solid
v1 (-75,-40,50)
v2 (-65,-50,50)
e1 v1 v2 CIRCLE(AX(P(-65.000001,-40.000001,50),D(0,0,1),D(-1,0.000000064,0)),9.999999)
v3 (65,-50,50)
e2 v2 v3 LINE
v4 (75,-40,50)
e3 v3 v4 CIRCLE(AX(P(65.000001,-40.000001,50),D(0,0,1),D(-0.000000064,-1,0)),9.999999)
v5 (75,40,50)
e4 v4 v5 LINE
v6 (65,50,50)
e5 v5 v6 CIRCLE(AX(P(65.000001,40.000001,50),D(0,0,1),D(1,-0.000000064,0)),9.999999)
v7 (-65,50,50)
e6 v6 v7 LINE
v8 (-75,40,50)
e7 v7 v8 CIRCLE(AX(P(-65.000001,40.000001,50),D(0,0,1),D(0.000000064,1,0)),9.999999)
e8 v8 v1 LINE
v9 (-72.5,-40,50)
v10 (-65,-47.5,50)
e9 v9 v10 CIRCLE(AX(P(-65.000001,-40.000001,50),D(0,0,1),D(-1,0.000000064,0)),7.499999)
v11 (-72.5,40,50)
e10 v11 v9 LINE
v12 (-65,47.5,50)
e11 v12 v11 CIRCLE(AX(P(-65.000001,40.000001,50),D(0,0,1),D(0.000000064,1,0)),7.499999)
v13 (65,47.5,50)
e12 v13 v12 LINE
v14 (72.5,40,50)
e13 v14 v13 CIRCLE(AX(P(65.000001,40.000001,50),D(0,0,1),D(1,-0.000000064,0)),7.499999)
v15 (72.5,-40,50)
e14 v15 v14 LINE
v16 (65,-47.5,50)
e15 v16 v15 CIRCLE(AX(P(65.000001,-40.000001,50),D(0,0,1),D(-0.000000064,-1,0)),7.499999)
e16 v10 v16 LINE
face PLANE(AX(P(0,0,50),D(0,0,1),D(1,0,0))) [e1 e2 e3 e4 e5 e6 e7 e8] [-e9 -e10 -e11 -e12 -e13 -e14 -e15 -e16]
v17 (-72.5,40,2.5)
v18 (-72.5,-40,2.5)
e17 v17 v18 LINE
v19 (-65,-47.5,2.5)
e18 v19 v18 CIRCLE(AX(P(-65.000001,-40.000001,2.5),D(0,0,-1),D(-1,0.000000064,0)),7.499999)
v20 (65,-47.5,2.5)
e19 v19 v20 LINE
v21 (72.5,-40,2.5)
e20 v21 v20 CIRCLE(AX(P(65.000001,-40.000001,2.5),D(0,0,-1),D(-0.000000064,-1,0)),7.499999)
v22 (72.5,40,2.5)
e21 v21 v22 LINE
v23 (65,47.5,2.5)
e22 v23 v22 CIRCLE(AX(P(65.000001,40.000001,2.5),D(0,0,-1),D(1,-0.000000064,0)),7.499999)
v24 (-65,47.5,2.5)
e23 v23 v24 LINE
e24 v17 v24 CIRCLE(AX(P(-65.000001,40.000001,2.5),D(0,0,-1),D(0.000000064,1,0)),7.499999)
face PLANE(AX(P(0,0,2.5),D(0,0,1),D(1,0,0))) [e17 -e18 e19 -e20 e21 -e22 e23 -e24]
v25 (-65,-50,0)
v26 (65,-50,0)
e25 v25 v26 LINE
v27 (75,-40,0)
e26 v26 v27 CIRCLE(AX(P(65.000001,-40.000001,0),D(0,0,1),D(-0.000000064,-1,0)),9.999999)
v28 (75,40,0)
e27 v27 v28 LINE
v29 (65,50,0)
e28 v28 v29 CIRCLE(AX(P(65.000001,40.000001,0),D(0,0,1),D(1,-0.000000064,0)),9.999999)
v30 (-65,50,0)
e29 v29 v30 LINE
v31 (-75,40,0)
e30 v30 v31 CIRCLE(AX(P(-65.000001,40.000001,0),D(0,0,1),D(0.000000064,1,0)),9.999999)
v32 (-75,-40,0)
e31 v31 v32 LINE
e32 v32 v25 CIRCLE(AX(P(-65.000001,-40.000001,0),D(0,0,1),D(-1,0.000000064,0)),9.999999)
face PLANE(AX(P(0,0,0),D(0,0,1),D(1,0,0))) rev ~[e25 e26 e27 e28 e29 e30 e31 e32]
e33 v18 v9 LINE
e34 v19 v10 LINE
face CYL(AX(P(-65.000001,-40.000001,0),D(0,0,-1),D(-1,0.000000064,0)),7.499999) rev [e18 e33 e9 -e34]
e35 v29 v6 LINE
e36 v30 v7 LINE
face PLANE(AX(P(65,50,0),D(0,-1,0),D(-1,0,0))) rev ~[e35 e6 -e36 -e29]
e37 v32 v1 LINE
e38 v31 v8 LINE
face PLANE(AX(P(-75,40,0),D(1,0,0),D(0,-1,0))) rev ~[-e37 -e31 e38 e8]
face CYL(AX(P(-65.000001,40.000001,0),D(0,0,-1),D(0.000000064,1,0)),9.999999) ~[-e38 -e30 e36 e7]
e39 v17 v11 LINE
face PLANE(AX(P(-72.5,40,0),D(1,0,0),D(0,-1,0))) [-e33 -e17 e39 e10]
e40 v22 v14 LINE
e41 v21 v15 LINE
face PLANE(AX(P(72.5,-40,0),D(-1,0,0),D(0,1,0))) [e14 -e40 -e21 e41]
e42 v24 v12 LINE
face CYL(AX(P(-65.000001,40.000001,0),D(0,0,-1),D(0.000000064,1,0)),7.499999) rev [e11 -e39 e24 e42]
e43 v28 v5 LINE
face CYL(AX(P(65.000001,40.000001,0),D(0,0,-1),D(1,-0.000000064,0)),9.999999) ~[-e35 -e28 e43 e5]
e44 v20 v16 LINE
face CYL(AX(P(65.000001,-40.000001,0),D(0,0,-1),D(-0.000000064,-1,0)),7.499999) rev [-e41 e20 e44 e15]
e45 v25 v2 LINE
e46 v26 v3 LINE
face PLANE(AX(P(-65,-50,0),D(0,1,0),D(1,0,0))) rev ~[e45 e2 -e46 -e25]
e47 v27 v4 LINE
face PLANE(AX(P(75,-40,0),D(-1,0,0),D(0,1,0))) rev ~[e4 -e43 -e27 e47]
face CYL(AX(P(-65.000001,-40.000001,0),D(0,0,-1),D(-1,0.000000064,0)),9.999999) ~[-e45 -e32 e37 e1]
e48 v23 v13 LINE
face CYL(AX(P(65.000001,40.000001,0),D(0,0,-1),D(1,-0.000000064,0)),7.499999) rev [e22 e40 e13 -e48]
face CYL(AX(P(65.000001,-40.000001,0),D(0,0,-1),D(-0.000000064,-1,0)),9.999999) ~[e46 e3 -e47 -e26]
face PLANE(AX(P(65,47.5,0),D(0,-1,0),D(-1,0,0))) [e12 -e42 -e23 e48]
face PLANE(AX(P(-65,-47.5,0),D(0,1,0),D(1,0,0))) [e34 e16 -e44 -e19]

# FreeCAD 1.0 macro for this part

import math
import FreeCAD as App
import Part
import Sketcher
from FreeCAD import Vector


def faces_at(feature, points):
    """Names of the faces that lie closest to the given points."""
    faces = feature.Shape.Faces
    near = lambda p: min(range(len(faces)), key=lambda i: faces[i].distToShape(Part.Vertex(*p))[0])
    return sorted({f"Face{near(p) + 1}" for p in points})

doc = App.newDocument("Part")
body = doc.addObject("PartDesign::Body", "Body")

sketch1 = body.newObject("Sketcher::SketchObject", "Sketch")
sketch1.AttachmentSupport = (doc.getObject("XY_Plane"), [""])
sketch1.MapMode = "FlatFace"
sketch1.addGeometry([
    Part.LineSegment(Vector(-65, -50, 0), Vector(65, -50, 0)),
    Part.ArcOfCircle(Part.Circle(Vector(65, -40, 0), Vector(0, 0, 1), 10), math.radians(-90), math.radians(0)),
    Part.LineSegment(Vector(75, -40, 0), Vector(75, 40, 0)),
    Part.ArcOfCircle(Part.Circle(Vector(65, 40, 0), Vector(0, 0, 1), 10), math.radians(0), math.radians(90)),
    Part.LineSegment(Vector(65, 50, 0), Vector(-65, 50, 0)),
    Part.ArcOfCircle(Part.Circle(Vector(-65, 40, 0), Vector(0, 0, 1), 10), math.radians(90), math.radians(180)),
    Part.LineSegment(Vector(-75, 40, 0), Vector(-75, -40, 0)),
    Part.ArcOfCircle(Part.Circle(Vector(-65, -40, 0), Vector(0, 0, 1), 10), math.radians(180), math.radians(270)),
], False)
sketch1.addConstraint([
    Sketcher.Constraint("Tangent", 0, 2, 1, 1),
    Sketcher.Constraint("Tangent", 1, 2, 2, 1),
    Sketcher.Constraint("Tangent", 2, 2, 3, 1),
    Sketcher.Constraint("Tangent", 3, 2, 4, 1),
    Sketcher.Constraint("Tangent", 4, 2, 5, 1),
    Sketcher.Constraint("Tangent", 5, 2, 6, 1),
    Sketcher.Constraint("Tangent", 6, 2, 7, 1),
    Sketcher.Constraint("Tangent", 7, 2, 0, 1),
    Sketcher.Constraint("Horizontal", 0),
    Sketcher.Constraint("Vertical", 2),
    Sketcher.Constraint("Horizontal", 4),
    Sketcher.Constraint("Vertical", 6),
    Sketcher.Constraint("Equal", 1, 3),
    Sketcher.Constraint("Equal", 3, 5),
    Sketcher.Constraint("Equal", 5, 7),
    Sketcher.Constraint("Symmetric", 1, 3, 5, 3, -1, 1),
    Sketcher.Constraint("Radius", 1, 9.999999),
    Sketcher.Constraint("DistanceX", 0, 1, 0, 2, 130.0),
    Sketcher.Constraint("DistanceY", 2, 1, 2, 2, 80.0),
])
pad1 = body.newObject("PartDesign::Pad", "Pad")
pad1.Profile = sketch1
pad1.Length = 50
doc.recompute()

thickness = body.newObject("PartDesign::Thickness", "Thickness")
thickness.Base = (pad1, faces_at(pad1, [(0, 0, 50)]))
thickness.Value = 2.5
thickness.Reversed = True
thickness.Join = "Arc"

doc.recompute()
